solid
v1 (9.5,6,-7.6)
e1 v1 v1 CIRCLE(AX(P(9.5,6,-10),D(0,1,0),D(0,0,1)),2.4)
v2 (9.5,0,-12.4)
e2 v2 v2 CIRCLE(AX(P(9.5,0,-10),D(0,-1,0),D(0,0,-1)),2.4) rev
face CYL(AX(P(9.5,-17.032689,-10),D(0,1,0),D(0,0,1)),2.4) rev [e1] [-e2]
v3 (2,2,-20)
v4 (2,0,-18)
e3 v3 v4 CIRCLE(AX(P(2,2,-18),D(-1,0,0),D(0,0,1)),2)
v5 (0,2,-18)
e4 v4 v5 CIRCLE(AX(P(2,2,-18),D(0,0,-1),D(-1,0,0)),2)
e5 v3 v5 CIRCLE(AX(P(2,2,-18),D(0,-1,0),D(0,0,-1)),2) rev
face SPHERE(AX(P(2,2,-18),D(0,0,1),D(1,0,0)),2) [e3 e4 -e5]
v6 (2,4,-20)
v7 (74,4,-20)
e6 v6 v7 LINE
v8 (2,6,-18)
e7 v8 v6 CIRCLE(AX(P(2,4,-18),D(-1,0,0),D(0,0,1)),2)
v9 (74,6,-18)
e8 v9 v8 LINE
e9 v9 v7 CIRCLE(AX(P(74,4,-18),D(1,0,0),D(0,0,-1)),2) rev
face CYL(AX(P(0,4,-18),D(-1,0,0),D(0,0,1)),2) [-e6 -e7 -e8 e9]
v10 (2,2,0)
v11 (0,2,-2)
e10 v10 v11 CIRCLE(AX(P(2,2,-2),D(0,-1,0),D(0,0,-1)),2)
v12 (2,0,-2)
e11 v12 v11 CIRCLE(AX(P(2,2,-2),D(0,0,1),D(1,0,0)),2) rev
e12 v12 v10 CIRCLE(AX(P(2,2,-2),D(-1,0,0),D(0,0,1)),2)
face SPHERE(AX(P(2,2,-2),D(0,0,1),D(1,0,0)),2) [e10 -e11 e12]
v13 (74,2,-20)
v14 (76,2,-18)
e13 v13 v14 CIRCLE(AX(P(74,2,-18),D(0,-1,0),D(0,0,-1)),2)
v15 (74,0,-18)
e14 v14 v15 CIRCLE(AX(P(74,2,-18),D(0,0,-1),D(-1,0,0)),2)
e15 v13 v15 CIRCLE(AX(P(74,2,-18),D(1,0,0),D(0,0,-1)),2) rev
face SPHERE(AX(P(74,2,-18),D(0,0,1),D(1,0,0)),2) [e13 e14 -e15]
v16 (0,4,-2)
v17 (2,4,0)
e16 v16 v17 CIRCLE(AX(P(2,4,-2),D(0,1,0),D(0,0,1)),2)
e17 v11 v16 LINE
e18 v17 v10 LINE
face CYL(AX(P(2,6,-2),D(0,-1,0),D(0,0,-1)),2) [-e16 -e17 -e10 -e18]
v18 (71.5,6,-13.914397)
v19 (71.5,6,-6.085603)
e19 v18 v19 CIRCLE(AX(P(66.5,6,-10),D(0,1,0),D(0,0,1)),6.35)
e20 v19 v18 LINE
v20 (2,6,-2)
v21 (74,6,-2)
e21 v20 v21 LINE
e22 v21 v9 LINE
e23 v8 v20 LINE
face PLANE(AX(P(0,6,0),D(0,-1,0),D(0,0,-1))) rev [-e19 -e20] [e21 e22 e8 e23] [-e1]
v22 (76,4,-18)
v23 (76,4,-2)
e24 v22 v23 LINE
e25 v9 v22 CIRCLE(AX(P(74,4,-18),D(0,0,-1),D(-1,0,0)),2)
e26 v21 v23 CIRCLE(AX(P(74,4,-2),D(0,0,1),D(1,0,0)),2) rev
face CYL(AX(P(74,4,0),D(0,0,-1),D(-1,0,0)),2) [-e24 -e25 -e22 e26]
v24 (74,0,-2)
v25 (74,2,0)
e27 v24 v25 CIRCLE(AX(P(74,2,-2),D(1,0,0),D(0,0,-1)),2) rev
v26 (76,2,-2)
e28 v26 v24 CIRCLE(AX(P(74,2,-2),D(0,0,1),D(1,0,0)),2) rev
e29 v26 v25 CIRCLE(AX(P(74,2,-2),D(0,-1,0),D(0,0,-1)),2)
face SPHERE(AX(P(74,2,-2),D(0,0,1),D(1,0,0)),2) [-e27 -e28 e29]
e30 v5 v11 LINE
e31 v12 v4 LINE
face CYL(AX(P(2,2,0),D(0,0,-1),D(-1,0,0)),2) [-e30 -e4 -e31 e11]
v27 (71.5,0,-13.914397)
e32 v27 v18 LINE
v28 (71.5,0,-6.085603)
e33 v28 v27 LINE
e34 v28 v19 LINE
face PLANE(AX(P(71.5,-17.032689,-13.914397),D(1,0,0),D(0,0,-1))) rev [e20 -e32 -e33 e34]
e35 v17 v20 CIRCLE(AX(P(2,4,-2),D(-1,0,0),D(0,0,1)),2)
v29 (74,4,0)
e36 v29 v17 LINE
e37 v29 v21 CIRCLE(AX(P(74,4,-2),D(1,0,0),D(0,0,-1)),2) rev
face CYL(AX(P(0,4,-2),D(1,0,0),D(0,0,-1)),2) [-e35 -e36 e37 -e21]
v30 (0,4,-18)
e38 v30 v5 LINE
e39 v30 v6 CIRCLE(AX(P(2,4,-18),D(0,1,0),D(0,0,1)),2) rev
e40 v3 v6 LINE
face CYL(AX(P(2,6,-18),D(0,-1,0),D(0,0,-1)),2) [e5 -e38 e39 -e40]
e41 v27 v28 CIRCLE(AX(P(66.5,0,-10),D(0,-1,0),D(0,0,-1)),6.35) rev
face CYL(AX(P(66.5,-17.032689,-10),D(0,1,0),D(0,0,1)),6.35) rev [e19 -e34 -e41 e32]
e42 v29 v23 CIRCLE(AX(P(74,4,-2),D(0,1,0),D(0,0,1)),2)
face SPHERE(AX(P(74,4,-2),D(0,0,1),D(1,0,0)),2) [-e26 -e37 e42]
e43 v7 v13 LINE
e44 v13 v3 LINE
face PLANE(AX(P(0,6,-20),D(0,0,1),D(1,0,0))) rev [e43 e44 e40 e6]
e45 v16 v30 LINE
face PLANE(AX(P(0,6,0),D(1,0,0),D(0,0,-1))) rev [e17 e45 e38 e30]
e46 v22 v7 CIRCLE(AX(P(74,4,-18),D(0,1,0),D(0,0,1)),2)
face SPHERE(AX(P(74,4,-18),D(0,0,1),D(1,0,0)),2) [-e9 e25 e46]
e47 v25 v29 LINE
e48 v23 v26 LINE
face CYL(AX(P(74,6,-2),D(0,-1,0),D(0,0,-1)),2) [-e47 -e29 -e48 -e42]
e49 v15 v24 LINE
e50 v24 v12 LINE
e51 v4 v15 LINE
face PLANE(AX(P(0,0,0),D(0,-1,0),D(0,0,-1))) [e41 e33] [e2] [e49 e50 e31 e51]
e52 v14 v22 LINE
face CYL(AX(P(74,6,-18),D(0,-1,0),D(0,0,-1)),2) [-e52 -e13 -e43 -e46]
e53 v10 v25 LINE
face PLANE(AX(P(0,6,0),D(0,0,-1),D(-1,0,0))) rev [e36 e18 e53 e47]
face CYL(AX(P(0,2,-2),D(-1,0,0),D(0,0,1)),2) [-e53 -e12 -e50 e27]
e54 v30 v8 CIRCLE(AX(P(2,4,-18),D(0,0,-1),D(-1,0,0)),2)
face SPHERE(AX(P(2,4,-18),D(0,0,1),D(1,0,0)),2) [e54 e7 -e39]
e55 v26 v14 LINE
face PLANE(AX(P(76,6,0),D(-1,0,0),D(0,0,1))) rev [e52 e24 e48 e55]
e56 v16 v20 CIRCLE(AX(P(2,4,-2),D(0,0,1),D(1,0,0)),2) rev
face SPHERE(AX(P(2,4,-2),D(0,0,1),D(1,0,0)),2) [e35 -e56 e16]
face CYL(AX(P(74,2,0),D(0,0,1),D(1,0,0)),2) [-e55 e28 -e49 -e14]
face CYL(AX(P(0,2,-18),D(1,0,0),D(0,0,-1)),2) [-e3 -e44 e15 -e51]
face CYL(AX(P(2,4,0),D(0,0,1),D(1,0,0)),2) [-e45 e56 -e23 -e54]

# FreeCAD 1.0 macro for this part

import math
import FreeCAD as App
import Part
import Sketcher

V = App.Vector
Q = App.Units.Quantity


def edges_at(feature, points):
    """Names of the edges that pass closest to the given points."""
    edges = feature.Shape.Edges
    near = lambda p: min(range(len(edges)), key=lambda i: edges[i].distToShape(Part.Vertex(*p))[0])
    return sorted({f"Edge{near(p) + 1}" for p in points})

doc = App.newDocument("Part")
params = doc.addObject("Spreadsheet::Sheet", "Params")
for row, (alias, value) in enumerate([
    ("sketch1_width", "76 mm"),
    ("sketch1_height", "20 mm"),
    ("pad1_length", "6 mm"),
    ("sketch2_diameter", "4.8 mm"),
    ("sketch2_radius", "6.35 mm"),
    ("pocket1_length", "6 mm"),
    ("fillet_radius", "2 mm"),
], start=1):
    params.set(f"A{row}", alias)
    params.set(f"B{row}", "=" + value)
    params.setAlias(f"B{row}", alias)

body = doc.addObject("PartDesign::Body", "Body")

sketch1 = body.newObject("Sketcher::SketchObject", "Sketch")
sketch1.AttachmentSupport = (doc.getObject("XZ_Plane"), [""])
sketch1.MapMode = "FlatFace"
sketch1.addGeometry([
    Part.LineSegment(V(0, -20, 0), V(0, 0, 0)),
    Part.LineSegment(V(0, 0, 0), V(76, 0, 0)),
    Part.LineSegment(V(76, 0, 0), V(76, -20, 0)),
    Part.LineSegment(V(76, -20, 0), V(0, -20, 0)),
], False)
sketch1.addConstraint([
    Sketcher.Constraint("Coincident", 0, 2, 1, 1),
    Sketcher.Constraint("Coincident", 1, 2, 2, 1),
    Sketcher.Constraint("Coincident", 2, 2, 3, 1),
    Sketcher.Constraint("Coincident", 3, 2, 0, 1),
    Sketcher.Constraint("Vertical", 0),
    Sketcher.Constraint("Horizontal", 1),
    Sketcher.Constraint("Vertical", 2),
    Sketcher.Constraint("Horizontal", 3),
    Sketcher.Constraint("Coincident", 0, 2, -1, 1),
    Sketcher.Constraint("DistanceX", 1, 1, 1, 2, Q("76 mm")),
    Sketcher.Constraint("DistanceY", 0, 1, 0, 2, Q("20 mm")),
])
sketch1.setExpression("Constraints[9]", "Params.sketch1_width")
sketch1.setExpression("Constraints[10]", "Params.sketch1_height")
pad1 = body.newObject("PartDesign::Pad", "Pad")
pad1.Profile = sketch1
pad1.setExpression("Length", "Params.pad1_length")
pad1.Reversed = True

sketch2 = body.newObject("Sketcher::SketchObject", "Sketch001")
sketch2.AttachmentSupport = (doc.getObject("XZ_Plane"), [""])
sketch2.MapMode = "FlatFace"
sketch2.AttachmentOffset = App.Placement(V(0, 0, -6), App.Rotation())
sketch2.addGeometry([
    Part.Circle(V(9.5, -10, 0), V(0, 0, 1), 2.4),
    Part.LineSegment(V(71.5, -6.085603, 0), V(71.5, -13.914397, 0)),
    Part.ArcOfCircle(Part.Circle(V(66.5, -10, 0), V(0, 0, 1), 6.35), math.radians(38.056657), math.radians(321.943343)),
], False)
sketch2.addConstraint([
    Sketcher.Constraint("Coincident", 1, 1, 2, 1),
    Sketcher.Constraint("Coincident", 2, 2, 1, 2),
    Sketcher.Constraint("Vertical", 1),
    Sketcher.Constraint("Horizontal", 0, 3, 2, 3),
    Sketcher.Constraint("Diameter", 0, Q("4.8 mm")),
    Sketcher.Constraint("Radius", 2, Q("6.35 mm")),
    Sketcher.Constraint("DistanceY", 0, 3, -1, 1, Q("10 mm")),
    Sketcher.Constraint("DistanceX", 0, 3, 2, 3, Q("57 mm")),
    Sketcher.Constraint("DistanceX", 2, 3, 1, 1, Q("5 mm")),
    Sketcher.Constraint("DistanceX", -1, 1, 0, 3, Q("9.5 mm")),
])
sketch2.setExpression("Constraints[4]", "Params.sketch2_diameter")
sketch2.setExpression("Constraints[5]", "Params.sketch2_radius")
pocket1 = body.newObject("PartDesign::Pocket", "Pocket")
pocket1.Profile = sketch2
pocket1.setExpression("Length", "Params.pocket1_length")
pocket1.Reversed = True
doc.recompute()

fillet = body.newObject("PartDesign::Fillet", "Fillet")
fillet.Base = (pocket1, edges_at(pocket1, [
    (76, 6, -10),
    (38, 6, -20),
    (0, 6, -10),
    (38, 0, -20),
    (76, 0, -10),
    (38, 0, 0),
    (0, 0, -10),
    (38, 6, 0),
    (0, 3, -20),
    (76, 3, -20),
    (76, 3, 0),
    (0, 3, 0),
]))
fillet.setExpression("Radius", "Params.fillet_radius")

doc.recompute()
